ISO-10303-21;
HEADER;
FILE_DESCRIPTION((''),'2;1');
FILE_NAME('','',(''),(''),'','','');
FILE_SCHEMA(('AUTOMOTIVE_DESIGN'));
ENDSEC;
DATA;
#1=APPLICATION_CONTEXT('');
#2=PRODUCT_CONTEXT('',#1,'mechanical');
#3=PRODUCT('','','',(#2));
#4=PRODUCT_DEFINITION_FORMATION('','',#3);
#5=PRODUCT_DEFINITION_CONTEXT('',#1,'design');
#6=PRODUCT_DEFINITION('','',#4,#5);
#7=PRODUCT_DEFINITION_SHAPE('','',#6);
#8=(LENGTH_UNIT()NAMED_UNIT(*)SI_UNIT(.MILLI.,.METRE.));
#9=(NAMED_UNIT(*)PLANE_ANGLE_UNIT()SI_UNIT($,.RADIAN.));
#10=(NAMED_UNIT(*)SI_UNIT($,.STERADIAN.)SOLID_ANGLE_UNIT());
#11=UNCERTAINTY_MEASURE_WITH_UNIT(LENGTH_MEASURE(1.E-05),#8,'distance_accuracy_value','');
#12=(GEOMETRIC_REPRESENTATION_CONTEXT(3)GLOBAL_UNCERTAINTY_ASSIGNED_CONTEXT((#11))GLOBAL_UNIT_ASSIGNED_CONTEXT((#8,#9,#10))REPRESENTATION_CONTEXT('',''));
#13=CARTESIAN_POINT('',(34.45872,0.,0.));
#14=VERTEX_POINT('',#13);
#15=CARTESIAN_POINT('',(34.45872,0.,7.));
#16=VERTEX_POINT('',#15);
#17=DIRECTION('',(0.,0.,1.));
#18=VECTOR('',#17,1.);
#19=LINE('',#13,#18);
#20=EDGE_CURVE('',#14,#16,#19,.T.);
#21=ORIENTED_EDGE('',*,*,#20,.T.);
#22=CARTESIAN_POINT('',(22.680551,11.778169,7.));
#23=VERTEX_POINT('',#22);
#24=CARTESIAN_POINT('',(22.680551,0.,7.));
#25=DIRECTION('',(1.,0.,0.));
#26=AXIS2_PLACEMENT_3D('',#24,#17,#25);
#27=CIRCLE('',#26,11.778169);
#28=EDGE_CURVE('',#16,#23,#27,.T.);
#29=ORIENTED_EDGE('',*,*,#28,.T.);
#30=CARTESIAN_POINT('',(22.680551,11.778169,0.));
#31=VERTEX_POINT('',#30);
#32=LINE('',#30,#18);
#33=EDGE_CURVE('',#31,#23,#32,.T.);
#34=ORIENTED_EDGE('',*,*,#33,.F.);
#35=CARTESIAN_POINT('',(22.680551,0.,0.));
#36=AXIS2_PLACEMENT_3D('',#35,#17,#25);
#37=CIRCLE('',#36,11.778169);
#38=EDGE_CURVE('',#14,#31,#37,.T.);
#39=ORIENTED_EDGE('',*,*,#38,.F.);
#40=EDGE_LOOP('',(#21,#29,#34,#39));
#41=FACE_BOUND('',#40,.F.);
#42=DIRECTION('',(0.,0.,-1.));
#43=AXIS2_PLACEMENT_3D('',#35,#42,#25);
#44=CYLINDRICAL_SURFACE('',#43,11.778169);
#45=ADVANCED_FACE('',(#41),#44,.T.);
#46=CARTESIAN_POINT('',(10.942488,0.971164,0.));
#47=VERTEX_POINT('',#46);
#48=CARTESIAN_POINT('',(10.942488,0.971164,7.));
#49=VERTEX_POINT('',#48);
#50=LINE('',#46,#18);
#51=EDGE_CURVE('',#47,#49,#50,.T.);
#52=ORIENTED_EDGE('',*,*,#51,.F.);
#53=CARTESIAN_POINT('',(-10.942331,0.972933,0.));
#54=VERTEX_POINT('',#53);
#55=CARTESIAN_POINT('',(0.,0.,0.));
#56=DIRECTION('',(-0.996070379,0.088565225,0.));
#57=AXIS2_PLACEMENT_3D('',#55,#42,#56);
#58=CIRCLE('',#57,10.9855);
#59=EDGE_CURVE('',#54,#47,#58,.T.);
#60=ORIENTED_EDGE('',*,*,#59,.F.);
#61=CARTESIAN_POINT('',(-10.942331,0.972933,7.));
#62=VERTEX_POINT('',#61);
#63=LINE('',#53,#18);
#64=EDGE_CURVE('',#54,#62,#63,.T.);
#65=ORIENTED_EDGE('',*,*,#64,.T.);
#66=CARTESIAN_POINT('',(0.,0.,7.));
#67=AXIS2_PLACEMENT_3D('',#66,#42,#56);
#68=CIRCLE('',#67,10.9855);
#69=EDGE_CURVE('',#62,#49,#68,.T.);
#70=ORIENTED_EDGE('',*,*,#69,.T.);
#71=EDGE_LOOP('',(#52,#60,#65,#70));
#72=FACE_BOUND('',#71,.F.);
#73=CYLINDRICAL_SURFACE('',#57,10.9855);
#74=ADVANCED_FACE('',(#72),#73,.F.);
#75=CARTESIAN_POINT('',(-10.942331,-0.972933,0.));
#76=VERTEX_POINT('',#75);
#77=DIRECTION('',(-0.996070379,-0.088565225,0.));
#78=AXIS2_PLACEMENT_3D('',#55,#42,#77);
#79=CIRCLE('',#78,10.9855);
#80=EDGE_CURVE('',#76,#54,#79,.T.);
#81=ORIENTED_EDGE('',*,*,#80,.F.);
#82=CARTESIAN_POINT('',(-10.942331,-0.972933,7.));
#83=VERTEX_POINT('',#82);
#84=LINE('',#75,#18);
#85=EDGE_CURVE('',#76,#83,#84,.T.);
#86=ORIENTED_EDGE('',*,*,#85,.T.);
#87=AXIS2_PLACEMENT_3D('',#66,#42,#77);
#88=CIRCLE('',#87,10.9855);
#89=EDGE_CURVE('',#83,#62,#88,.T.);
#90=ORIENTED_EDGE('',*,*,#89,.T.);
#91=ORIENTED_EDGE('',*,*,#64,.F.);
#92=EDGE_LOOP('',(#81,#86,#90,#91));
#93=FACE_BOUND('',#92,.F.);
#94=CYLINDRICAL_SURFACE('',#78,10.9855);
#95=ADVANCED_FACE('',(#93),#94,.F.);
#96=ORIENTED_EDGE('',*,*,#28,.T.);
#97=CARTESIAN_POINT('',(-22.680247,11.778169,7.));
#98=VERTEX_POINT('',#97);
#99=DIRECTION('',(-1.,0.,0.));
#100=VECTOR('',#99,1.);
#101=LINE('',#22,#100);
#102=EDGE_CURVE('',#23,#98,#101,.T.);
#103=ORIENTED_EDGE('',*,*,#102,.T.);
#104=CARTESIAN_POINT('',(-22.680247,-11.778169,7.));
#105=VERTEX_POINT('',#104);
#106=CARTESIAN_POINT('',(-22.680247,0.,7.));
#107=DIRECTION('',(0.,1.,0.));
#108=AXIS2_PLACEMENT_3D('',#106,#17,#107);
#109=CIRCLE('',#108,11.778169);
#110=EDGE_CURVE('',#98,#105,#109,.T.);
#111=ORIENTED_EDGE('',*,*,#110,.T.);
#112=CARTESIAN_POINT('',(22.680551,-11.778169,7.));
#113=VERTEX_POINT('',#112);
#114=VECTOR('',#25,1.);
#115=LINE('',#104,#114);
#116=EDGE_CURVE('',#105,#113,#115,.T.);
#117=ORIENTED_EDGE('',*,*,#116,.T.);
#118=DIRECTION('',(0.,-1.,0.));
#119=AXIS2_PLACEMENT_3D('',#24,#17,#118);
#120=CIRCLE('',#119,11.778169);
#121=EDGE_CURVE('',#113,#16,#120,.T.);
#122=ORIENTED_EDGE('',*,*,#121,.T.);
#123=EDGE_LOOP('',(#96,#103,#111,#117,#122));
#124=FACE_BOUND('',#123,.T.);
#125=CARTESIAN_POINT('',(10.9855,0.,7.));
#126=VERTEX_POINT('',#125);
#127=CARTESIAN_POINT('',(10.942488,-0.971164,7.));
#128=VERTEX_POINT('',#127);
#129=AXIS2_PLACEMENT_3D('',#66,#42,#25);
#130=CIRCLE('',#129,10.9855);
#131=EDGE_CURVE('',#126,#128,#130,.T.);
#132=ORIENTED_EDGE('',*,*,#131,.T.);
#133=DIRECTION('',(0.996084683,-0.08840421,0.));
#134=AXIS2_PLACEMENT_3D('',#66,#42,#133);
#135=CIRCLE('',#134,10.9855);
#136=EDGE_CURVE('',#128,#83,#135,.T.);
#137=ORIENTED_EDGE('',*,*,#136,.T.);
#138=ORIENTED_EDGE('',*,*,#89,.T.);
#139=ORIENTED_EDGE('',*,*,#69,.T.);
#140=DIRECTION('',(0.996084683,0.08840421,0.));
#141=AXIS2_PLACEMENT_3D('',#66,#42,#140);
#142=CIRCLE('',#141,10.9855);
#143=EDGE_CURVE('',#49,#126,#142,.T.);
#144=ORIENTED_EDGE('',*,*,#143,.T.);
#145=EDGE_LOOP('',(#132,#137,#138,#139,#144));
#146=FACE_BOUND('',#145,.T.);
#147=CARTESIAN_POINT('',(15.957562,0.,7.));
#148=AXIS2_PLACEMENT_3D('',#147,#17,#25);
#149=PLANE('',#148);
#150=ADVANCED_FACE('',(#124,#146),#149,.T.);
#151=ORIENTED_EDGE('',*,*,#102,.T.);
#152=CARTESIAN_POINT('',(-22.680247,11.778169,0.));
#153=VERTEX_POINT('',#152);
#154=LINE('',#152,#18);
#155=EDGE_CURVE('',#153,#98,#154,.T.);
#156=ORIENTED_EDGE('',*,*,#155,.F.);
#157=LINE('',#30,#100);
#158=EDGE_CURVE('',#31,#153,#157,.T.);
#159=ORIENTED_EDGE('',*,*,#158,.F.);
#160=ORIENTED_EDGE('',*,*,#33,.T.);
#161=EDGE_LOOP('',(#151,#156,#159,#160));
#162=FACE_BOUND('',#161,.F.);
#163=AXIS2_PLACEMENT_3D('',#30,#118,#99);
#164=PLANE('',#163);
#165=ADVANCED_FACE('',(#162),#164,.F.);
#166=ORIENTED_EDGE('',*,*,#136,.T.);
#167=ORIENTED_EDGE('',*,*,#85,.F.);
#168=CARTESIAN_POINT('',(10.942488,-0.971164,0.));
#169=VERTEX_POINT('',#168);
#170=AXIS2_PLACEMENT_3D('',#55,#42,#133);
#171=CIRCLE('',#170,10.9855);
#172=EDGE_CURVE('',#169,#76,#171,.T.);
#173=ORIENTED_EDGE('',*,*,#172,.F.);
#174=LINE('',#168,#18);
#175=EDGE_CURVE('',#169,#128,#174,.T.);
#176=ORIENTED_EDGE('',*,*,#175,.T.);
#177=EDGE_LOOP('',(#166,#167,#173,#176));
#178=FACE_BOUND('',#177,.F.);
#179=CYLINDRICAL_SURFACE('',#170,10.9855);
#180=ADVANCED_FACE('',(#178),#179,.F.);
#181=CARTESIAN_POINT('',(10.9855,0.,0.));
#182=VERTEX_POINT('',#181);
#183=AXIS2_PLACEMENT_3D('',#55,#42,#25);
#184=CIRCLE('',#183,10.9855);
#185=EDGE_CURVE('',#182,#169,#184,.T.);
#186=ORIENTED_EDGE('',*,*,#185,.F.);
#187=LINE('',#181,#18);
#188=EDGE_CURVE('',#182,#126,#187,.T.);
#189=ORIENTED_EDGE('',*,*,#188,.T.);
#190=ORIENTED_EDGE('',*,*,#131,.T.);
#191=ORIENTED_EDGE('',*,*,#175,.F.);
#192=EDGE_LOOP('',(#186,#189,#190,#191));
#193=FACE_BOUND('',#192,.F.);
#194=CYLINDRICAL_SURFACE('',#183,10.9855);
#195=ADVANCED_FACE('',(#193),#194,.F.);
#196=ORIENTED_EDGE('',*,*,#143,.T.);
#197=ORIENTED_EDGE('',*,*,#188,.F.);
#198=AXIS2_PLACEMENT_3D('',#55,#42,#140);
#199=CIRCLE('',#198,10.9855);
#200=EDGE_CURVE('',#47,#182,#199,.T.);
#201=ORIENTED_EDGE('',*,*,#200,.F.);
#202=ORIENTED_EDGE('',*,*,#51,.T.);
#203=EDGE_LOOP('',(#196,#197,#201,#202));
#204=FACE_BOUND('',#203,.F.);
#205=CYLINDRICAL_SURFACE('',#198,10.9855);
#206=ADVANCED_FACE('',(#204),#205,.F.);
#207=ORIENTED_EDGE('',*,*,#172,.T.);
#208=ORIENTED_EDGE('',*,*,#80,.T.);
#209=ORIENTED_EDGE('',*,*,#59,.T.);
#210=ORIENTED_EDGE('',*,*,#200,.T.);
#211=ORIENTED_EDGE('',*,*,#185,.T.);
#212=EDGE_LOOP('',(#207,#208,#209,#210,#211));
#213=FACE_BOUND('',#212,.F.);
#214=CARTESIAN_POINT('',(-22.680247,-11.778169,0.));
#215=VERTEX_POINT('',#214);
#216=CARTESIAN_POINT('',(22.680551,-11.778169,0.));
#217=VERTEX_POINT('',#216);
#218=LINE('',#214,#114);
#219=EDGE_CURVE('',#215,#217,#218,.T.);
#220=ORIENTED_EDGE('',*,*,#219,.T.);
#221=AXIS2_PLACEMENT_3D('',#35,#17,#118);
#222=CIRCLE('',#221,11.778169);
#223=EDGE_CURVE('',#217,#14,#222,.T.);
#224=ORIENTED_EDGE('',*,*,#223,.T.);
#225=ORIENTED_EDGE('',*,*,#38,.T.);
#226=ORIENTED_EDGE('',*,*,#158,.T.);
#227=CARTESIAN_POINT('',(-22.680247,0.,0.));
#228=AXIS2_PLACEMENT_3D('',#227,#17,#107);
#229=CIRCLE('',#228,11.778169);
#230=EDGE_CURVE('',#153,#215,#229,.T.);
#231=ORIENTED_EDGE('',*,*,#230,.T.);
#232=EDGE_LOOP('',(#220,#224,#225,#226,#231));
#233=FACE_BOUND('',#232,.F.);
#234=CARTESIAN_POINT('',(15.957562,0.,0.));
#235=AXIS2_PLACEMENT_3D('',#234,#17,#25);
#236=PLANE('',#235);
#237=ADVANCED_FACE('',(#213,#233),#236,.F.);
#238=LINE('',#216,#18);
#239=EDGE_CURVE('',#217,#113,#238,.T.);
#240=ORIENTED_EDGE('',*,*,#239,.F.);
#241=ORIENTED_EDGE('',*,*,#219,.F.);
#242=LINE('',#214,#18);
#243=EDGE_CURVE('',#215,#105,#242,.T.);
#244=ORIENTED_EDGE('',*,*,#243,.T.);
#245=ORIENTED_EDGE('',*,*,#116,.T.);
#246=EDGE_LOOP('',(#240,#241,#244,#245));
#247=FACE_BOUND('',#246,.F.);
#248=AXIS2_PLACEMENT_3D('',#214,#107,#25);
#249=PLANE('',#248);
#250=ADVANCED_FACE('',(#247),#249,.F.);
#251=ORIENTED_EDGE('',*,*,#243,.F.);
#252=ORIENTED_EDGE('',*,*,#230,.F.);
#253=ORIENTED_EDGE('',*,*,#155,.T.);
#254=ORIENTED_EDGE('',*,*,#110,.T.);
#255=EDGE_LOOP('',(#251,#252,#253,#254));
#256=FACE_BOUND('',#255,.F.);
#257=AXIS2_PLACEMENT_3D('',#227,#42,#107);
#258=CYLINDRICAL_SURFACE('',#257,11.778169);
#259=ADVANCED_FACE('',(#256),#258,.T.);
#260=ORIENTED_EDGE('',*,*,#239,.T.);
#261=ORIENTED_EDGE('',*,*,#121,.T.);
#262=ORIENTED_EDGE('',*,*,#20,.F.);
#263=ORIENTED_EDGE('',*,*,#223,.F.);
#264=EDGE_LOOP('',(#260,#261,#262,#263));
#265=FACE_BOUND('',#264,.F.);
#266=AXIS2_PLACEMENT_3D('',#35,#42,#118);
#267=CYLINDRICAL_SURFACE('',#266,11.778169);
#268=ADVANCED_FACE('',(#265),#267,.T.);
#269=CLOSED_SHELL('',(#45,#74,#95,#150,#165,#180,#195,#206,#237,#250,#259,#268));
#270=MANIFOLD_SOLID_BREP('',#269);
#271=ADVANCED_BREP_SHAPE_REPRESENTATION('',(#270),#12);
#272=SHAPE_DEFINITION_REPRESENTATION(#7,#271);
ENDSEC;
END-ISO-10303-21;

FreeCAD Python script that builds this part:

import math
import FreeCAD as App
import Part
import Sketcher

doc = App.newDocument("Part")
body = doc.addObject("PartDesign::Body", "Body")

# Sketch on XY plane
sketch1 = body.newObject("Sketcher::SketchObject", "Sketch")
sketch1.AttachmentSupport = (doc.getObject("XY_Plane"), [""])
sketch1.MapMode = "FlatFace"
sketch1.addGeometry(Part.LineSegment(App.Vector(-22.7, -11.8, 0), App.Vector(22.7, -11.8, 0)), False)
sketch1.addGeometry(Part.ArcOfCircle(Part.Circle(App.Vector(22.7, 0, 0), App.Vector(0, 0, 1), 11.8), math.radians(-90), math.radians(0)), False)
sketch1.addGeometry(Part.ArcOfCircle(Part.Circle(App.Vector(22.7, 0, 0), App.Vector(0, 0, 1), 11.8), math.radians(0), math.radians(90)), False)
sketch1.addGeometry(Part.LineSegment(App.Vector(22.7, 11.8, 0), App.Vector(-22.7, 11.8, 0)), False)
sketch1.addGeometry(Part.ArcOfCircle(Part.Circle(App.Vector(-22.7, 0, 0), App.Vector(0, 0, 1), 11.8), math.radians(90), math.radians(270)), False)
sketch1.addGeometry(Part.ArcOfCircle(Part.Circle(App.Vector(0, 0, 0), App.Vector(0, 0, 1), 11), math.radians(0), math.radians(5.07)), False)
sketch1.addGeometry(Part.ArcOfCircle(Part.Circle(App.Vector(0, 0, 0), App.Vector(0, 0, 1), 11), math.radians(-5.07), math.radians(0)), False)
sketch1.addGeometry(Part.ArcOfCircle(Part.Circle(App.Vector(0, 0, 0), App.Vector(0, 0, 1), 11), math.radians(-175), math.radians(-5)), False)
sketch1.addGeometry(Part.ArcOfCircle(Part.Circle(App.Vector(0, 0, 0), App.Vector(0, 0, 1), 11), math.radians(174.92), math.radians(185.08)), False)
sketch1.addGeometry(Part.ArcOfCircle(Part.Circle(App.Vector(0, 0, 0), App.Vector(0, 0, 1), 11), math.radians(5), math.radians(175)), False)
sketch1.addConstraint(Sketcher.Constraint("Tangent", 0, 2, 1, 1))
sketch1.addConstraint(Sketcher.Constraint("Tangent", 1, 2, 2, 1))
sketch1.addConstraint(Sketcher.Constraint("Tangent", 2, 2, 3, 1))
sketch1.addConstraint(Sketcher.Constraint("Tangent", 3, 2, 4, 1))
sketch1.addConstraint(Sketcher.Constraint("Tangent", 4, 2, 0, 1))
sketch1.addConstraint(Sketcher.Constraint("Tangent", 5, 1, 6, 2))
sketch1.addConstraint(Sketcher.Constraint("Tangent", 6, 1, 7, 2))
sketch1.addConstraint(Sketcher.Constraint("Tangent", 7, 1, 8, 2))
sketch1.addConstraint(Sketcher.Constraint("Tangent", 8, 1, 9, 2))
sketch1.addConstraint(Sketcher.Constraint("Tangent", 9, 1, 5, 2))
sketch1.addConstraint(Sketcher.Constraint("Horizontal", 0))
sketch1.addConstraint(Sketcher.Constraint("Horizontal", 3))
sketch1.addConstraint(Sketcher.Constraint("Coincident", 5, 3, -1, 1))
sketch1.addConstraint(Sketcher.Constraint("Coincident", 7, 3, -1, 1))
sketch1.addConstraint(Sketcher.Constraint("Equal", 1, 2))
sketch1.addConstraint(Sketcher.Constraint("PointOnObject", 1, 3, -1))
sketch1.addConstraint(Sketcher.Constraint("PointOnObject", 1, 2, -1))
sketch1.addConstraint(Sketcher.Constraint("PointOnObject", 5, 1, -1))
sketch1.addConstraint(Sketcher.Constraint("Vertical", 7, 1, 8, 1))
sketch1.addConstraint(Sketcher.Constraint("Vertical", 6, 1, 9, 1))
sketch1.addConstraint(Sketcher.Constraint("Radius", 5, 10.9855))
sketch1.addConstraint(Sketcher.Constraint("Radius", 1, 11.778169))
sketch1.addConstraint(Sketcher.Constraint("DistanceX", 0, 1, 0, 2, 45.360798))
sketch1.addConstraint(Sketcher.Constraint("DistanceX", -1, 1, 1, 3, 22.680551))
sketch1.addConstraint(Sketcher.Constraint("DistanceX", -1, 1, 6, 1, 10.942488))
sketch1.addConstraint(Sketcher.Constraint("DistanceX", 7, 1, -1, 1, 10.942331))
pad1 = body.newObject("PartDesign::Pad", "Pad")
pad1.Profile = sketch1
pad1.Length = 7

doc.recompute()
